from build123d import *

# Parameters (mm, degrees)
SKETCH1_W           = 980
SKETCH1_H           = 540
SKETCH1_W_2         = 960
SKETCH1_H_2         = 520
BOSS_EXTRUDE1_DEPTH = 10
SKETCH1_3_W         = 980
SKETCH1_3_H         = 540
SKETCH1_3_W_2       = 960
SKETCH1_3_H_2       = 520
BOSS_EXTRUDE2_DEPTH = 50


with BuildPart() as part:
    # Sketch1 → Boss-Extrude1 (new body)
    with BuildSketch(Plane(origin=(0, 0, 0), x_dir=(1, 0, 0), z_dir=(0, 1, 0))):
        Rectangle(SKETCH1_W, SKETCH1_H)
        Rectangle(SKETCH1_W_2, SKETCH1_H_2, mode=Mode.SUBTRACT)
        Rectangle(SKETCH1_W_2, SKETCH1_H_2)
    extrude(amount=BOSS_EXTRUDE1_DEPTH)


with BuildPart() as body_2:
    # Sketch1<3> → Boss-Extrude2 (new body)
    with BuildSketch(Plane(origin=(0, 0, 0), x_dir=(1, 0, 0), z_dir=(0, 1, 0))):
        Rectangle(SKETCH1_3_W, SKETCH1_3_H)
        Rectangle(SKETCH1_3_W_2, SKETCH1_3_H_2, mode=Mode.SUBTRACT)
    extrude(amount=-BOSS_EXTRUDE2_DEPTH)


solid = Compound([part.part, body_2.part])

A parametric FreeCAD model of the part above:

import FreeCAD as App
import Part
import Sketcher
from FreeCAD import Vector

doc = App.newDocument("Part")
body = doc.addObject("PartDesign::Body", "Body")

# Sketch on XZ plane
sketch1 = body.newObject("Sketcher::SketchObject", "Sketch")
sketch1.AttachmentSupport = (doc.getObject("XZ_Plane"), [""])
sketch1.MapMode = "FlatFace"
sketch1.addGeometry([
    Part.LineSegment(Vector(-490, -270, 0), Vector(-490, 270, 0)),
    Part.LineSegment(Vector(-490, 270, 0), Vector(490, 270, 0)),
    Part.LineSegment(Vector(490, 270, 0), Vector(490, -270, 0)),
    Part.LineSegment(Vector(490, -270, 0), Vector(-490, -270, 0)),
], False)
sketch1.addConstraint([
    Sketcher.Constraint("Coincident", 0, 2, 1, 1),
    Sketcher.Constraint("Coincident", 1, 2, 2, 1),
    Sketcher.Constraint("Coincident", 2, 2, 3, 1),
    Sketcher.Constraint("Coincident", 3, 2, 0, 1),
    Sketcher.Constraint("Vertical", 0),
    Sketcher.Constraint("Horizontal", 1),
    Sketcher.Constraint("Vertical", 2),
    Sketcher.Constraint("Horizontal", 3),
    Sketcher.Constraint("Symmetric", 0, 2, 2, 2, -1, 1),
    Sketcher.Constraint("DistanceX", 1, 1, 1, 2, 980.0),
    Sketcher.Constraint("DistanceY", 0, 1, 0, 2, 540.0),
])
pad1 = body.newObject("PartDesign::Pad", "Pad")
pad1.Profile = sketch1
pad1.Length = 10
pad1.Reversed = True
body2 = doc.addObject("PartDesign::Body", "Body001")

# Sketch on XZ plane
sketch2 = body2.newObject("Sketcher::SketchObject", "Sketch001")
sketch2.AttachmentSupport = (doc.getObject("XZ_Plane001"), [""])
sketch2.MapMode = "FlatFace"
sketch2.addGeometry([
    Part.LineSegment(Vector(-490, -270, 0), Vector(-490, 270, 0)),  # 0
    Part.LineSegment(Vector(-490, 270, 0), Vector(490, 270, 0)),  # 1
    Part.LineSegment(Vector(490, 270, 0), Vector(490, -270, 0)),  # 2
    Part.LineSegment(Vector(490, -270, 0), Vector(-490, -270, 0)),  # 3
    Part.LineSegment(Vector(480, 260, 0), Vector(-480, 260, 0)),  # 4
    Part.LineSegment(Vector(-480, 260, 0), Vector(-480, -260, 0)),  # 5
    Part.LineSegment(Vector(-480, -260, 0), Vector(480, -260, 0)),  # 6
    Part.LineSegment(Vector(480, -260, 0), Vector(480, 260, 0)),  # 7
], False)
sketch2.addConstraint([
    Sketcher.Constraint("Coincident", 0, 2, 1, 1),
    Sketcher.Constraint("Coincident", 1, 2, 2, 1),
    Sketcher.Constraint("Coincident", 2, 2, 3, 1),
    Sketcher.Constraint("Coincident", 3, 2, 0, 1),
    Sketcher.Constraint("Coincident", 4, 2, 5, 1),
    Sketcher.Constraint("Coincident", 5, 2, 6, 1),
    Sketcher.Constraint("Coincident", 6, 2, 7, 1),
    Sketcher.Constraint("Coincident", 7, 2, 4, 1),
    Sketcher.Constraint("Vertical", 0),
    Sketcher.Constraint("Horizontal", 1),
    Sketcher.Constraint("Vertical", 2),
    Sketcher.Constraint("Horizontal", 3),
    Sketcher.Constraint("Horizontal", 4),
    Sketcher.Constraint("Vertical", 5),
    Sketcher.Constraint("Horizontal", 6),
    Sketcher.Constraint("Vertical", 7),
    Sketcher.Constraint("Symmetric", 0, 2, 2, 2, -1, 1),
    Sketcher.Constraint("Symmetric", 4, 2, 6, 2, -1, 1),
    Sketcher.Constraint("DistanceX", 1, 1, 1, 2, 980.0),
    Sketcher.Constraint("DistanceX", 4, 2, 4, 1, 960.0),
    Sketcher.Constraint("DistanceY", 0, 1, 0, 2, 540.0),
    Sketcher.Constraint("DistanceY", 5, 2, 5, 1, 520.0),
])
pad2 = body2.newObject("PartDesign::Pad", "Pad001")
pad2.Profile = sketch2
pad2.Length = 50

doc.recompute()
